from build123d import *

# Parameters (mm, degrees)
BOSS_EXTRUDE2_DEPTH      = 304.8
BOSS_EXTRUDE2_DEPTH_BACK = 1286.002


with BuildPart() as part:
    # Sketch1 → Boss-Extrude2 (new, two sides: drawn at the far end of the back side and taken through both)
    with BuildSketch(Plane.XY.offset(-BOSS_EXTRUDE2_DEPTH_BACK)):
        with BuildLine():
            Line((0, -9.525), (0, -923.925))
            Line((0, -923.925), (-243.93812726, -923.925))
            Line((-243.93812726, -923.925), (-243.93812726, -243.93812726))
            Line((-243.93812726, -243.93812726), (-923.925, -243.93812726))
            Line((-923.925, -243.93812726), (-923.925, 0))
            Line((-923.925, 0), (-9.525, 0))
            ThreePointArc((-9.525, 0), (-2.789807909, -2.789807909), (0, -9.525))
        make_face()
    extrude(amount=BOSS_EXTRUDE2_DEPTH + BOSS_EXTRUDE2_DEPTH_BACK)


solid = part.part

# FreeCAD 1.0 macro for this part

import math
import FreeCAD as App
import Part
import Sketcher

V = App.Vector
Q = App.Units.Quantity

doc = App.newDocument("Part")
body = doc.addObject("PartDesign::Body", "Body")

# Sketch on XY plane
sketch1 = body.newObject("Sketcher::SketchObject", "Sketch")
sketch1.AttachmentSupport = (doc.getObject("XY_Plane"), [""])
sketch1.MapMode = "FlatFace"
sketch1.addGeometry(Part.LineSegment(V(0, -923.925, 0), V(0, -9.525, 0)), False)
sketch1.addGeometry(Part.ArcOfCircle(Part.Circle(V(-9.525, -9.525, 0), V(0, 0, 1), 9.525), math.radians(0), math.radians(90)), False)
sketch1.addGeometry(Part.LineSegment(V(-9.525, 0, 0), V(-923.925, 0, 0)), False)
sketch1.addGeometry(Part.LineSegment(V(-923.925, 0, 0), V(-923.925, -243.938127, 0)), False)
sketch1.addGeometry(Part.LineSegment(V(-923.925, -243.938127, 0), V(-243.938127, -243.938127, 0)), False)
sketch1.addGeometry(Part.LineSegment(V(-243.938127, -243.938127, 0), V(-243.938127, -923.925, 0)), False)
sketch1.addGeometry(Part.LineSegment(V(-243.938127, -923.925, 0), V(0, -923.925, 0)), False)
sketch1.addConstraint(Sketcher.Constraint("Tangent", 0, 2, 1, 1))
sketch1.addConstraint(Sketcher.Constraint("Tangent", 1, 2, 2, 1))
sketch1.addConstraint(Sketcher.Constraint("Coincident", 2, 2, 3, 1))
sketch1.addConstraint(Sketcher.Constraint("Coincident", 3, 2, 4, 1))
sketch1.addConstraint(Sketcher.Constraint("Coincident", 4, 2, 5, 1))
sketch1.addConstraint(Sketcher.Constraint("Coincident", 5, 2, 6, 1))
sketch1.addConstraint(Sketcher.Constraint("Coincident", 6, 2, 0, 1))
sketch1.addConstraint(Sketcher.Constraint("Vertical", 0))
sketch1.addConstraint(Sketcher.Constraint("Horizontal", 2))
sketch1.addConstraint(Sketcher.Constraint("Vertical", 3))
sketch1.addConstraint(Sketcher.Constraint("Horizontal", 4))
sketch1.addConstraint(Sketcher.Constraint("Vertical", 5))
sketch1.addConstraint(Sketcher.Constraint("Horizontal", 6))
sketch1.addConstraint(Sketcher.Constraint("PointOnObject", 0, 2, -2))
sketch1.addConstraint(Sketcher.Constraint("PointOnObject", 1, 2, -1))
sketch1.addConstraint(Sketcher.Constraint("Equal", 2, 0))
sketch1.addConstraint(Sketcher.Constraint("Equal", 6, 3))
sketch1.addConstraint(Sketcher.Constraint("DistanceX", 2, 2, 2, 1, Q("36 in")))
sketch1.addConstraint(Sketcher.Constraint("Radius", 1, Q("0.375 in")))
sketch1.addConstraint(Sketcher.Constraint("DistanceX", 4, 1, 4, 2, Q("679.986873 mm")))
pad1 = body.newObject("PartDesign::Pad", "Pad")
pad1.Profile = sketch1
pad1.Type = "TwoLengths"
pad1.Length = Q("12 in")
pad1.Length2 = Q("50.63 in")

doc.recompute()
